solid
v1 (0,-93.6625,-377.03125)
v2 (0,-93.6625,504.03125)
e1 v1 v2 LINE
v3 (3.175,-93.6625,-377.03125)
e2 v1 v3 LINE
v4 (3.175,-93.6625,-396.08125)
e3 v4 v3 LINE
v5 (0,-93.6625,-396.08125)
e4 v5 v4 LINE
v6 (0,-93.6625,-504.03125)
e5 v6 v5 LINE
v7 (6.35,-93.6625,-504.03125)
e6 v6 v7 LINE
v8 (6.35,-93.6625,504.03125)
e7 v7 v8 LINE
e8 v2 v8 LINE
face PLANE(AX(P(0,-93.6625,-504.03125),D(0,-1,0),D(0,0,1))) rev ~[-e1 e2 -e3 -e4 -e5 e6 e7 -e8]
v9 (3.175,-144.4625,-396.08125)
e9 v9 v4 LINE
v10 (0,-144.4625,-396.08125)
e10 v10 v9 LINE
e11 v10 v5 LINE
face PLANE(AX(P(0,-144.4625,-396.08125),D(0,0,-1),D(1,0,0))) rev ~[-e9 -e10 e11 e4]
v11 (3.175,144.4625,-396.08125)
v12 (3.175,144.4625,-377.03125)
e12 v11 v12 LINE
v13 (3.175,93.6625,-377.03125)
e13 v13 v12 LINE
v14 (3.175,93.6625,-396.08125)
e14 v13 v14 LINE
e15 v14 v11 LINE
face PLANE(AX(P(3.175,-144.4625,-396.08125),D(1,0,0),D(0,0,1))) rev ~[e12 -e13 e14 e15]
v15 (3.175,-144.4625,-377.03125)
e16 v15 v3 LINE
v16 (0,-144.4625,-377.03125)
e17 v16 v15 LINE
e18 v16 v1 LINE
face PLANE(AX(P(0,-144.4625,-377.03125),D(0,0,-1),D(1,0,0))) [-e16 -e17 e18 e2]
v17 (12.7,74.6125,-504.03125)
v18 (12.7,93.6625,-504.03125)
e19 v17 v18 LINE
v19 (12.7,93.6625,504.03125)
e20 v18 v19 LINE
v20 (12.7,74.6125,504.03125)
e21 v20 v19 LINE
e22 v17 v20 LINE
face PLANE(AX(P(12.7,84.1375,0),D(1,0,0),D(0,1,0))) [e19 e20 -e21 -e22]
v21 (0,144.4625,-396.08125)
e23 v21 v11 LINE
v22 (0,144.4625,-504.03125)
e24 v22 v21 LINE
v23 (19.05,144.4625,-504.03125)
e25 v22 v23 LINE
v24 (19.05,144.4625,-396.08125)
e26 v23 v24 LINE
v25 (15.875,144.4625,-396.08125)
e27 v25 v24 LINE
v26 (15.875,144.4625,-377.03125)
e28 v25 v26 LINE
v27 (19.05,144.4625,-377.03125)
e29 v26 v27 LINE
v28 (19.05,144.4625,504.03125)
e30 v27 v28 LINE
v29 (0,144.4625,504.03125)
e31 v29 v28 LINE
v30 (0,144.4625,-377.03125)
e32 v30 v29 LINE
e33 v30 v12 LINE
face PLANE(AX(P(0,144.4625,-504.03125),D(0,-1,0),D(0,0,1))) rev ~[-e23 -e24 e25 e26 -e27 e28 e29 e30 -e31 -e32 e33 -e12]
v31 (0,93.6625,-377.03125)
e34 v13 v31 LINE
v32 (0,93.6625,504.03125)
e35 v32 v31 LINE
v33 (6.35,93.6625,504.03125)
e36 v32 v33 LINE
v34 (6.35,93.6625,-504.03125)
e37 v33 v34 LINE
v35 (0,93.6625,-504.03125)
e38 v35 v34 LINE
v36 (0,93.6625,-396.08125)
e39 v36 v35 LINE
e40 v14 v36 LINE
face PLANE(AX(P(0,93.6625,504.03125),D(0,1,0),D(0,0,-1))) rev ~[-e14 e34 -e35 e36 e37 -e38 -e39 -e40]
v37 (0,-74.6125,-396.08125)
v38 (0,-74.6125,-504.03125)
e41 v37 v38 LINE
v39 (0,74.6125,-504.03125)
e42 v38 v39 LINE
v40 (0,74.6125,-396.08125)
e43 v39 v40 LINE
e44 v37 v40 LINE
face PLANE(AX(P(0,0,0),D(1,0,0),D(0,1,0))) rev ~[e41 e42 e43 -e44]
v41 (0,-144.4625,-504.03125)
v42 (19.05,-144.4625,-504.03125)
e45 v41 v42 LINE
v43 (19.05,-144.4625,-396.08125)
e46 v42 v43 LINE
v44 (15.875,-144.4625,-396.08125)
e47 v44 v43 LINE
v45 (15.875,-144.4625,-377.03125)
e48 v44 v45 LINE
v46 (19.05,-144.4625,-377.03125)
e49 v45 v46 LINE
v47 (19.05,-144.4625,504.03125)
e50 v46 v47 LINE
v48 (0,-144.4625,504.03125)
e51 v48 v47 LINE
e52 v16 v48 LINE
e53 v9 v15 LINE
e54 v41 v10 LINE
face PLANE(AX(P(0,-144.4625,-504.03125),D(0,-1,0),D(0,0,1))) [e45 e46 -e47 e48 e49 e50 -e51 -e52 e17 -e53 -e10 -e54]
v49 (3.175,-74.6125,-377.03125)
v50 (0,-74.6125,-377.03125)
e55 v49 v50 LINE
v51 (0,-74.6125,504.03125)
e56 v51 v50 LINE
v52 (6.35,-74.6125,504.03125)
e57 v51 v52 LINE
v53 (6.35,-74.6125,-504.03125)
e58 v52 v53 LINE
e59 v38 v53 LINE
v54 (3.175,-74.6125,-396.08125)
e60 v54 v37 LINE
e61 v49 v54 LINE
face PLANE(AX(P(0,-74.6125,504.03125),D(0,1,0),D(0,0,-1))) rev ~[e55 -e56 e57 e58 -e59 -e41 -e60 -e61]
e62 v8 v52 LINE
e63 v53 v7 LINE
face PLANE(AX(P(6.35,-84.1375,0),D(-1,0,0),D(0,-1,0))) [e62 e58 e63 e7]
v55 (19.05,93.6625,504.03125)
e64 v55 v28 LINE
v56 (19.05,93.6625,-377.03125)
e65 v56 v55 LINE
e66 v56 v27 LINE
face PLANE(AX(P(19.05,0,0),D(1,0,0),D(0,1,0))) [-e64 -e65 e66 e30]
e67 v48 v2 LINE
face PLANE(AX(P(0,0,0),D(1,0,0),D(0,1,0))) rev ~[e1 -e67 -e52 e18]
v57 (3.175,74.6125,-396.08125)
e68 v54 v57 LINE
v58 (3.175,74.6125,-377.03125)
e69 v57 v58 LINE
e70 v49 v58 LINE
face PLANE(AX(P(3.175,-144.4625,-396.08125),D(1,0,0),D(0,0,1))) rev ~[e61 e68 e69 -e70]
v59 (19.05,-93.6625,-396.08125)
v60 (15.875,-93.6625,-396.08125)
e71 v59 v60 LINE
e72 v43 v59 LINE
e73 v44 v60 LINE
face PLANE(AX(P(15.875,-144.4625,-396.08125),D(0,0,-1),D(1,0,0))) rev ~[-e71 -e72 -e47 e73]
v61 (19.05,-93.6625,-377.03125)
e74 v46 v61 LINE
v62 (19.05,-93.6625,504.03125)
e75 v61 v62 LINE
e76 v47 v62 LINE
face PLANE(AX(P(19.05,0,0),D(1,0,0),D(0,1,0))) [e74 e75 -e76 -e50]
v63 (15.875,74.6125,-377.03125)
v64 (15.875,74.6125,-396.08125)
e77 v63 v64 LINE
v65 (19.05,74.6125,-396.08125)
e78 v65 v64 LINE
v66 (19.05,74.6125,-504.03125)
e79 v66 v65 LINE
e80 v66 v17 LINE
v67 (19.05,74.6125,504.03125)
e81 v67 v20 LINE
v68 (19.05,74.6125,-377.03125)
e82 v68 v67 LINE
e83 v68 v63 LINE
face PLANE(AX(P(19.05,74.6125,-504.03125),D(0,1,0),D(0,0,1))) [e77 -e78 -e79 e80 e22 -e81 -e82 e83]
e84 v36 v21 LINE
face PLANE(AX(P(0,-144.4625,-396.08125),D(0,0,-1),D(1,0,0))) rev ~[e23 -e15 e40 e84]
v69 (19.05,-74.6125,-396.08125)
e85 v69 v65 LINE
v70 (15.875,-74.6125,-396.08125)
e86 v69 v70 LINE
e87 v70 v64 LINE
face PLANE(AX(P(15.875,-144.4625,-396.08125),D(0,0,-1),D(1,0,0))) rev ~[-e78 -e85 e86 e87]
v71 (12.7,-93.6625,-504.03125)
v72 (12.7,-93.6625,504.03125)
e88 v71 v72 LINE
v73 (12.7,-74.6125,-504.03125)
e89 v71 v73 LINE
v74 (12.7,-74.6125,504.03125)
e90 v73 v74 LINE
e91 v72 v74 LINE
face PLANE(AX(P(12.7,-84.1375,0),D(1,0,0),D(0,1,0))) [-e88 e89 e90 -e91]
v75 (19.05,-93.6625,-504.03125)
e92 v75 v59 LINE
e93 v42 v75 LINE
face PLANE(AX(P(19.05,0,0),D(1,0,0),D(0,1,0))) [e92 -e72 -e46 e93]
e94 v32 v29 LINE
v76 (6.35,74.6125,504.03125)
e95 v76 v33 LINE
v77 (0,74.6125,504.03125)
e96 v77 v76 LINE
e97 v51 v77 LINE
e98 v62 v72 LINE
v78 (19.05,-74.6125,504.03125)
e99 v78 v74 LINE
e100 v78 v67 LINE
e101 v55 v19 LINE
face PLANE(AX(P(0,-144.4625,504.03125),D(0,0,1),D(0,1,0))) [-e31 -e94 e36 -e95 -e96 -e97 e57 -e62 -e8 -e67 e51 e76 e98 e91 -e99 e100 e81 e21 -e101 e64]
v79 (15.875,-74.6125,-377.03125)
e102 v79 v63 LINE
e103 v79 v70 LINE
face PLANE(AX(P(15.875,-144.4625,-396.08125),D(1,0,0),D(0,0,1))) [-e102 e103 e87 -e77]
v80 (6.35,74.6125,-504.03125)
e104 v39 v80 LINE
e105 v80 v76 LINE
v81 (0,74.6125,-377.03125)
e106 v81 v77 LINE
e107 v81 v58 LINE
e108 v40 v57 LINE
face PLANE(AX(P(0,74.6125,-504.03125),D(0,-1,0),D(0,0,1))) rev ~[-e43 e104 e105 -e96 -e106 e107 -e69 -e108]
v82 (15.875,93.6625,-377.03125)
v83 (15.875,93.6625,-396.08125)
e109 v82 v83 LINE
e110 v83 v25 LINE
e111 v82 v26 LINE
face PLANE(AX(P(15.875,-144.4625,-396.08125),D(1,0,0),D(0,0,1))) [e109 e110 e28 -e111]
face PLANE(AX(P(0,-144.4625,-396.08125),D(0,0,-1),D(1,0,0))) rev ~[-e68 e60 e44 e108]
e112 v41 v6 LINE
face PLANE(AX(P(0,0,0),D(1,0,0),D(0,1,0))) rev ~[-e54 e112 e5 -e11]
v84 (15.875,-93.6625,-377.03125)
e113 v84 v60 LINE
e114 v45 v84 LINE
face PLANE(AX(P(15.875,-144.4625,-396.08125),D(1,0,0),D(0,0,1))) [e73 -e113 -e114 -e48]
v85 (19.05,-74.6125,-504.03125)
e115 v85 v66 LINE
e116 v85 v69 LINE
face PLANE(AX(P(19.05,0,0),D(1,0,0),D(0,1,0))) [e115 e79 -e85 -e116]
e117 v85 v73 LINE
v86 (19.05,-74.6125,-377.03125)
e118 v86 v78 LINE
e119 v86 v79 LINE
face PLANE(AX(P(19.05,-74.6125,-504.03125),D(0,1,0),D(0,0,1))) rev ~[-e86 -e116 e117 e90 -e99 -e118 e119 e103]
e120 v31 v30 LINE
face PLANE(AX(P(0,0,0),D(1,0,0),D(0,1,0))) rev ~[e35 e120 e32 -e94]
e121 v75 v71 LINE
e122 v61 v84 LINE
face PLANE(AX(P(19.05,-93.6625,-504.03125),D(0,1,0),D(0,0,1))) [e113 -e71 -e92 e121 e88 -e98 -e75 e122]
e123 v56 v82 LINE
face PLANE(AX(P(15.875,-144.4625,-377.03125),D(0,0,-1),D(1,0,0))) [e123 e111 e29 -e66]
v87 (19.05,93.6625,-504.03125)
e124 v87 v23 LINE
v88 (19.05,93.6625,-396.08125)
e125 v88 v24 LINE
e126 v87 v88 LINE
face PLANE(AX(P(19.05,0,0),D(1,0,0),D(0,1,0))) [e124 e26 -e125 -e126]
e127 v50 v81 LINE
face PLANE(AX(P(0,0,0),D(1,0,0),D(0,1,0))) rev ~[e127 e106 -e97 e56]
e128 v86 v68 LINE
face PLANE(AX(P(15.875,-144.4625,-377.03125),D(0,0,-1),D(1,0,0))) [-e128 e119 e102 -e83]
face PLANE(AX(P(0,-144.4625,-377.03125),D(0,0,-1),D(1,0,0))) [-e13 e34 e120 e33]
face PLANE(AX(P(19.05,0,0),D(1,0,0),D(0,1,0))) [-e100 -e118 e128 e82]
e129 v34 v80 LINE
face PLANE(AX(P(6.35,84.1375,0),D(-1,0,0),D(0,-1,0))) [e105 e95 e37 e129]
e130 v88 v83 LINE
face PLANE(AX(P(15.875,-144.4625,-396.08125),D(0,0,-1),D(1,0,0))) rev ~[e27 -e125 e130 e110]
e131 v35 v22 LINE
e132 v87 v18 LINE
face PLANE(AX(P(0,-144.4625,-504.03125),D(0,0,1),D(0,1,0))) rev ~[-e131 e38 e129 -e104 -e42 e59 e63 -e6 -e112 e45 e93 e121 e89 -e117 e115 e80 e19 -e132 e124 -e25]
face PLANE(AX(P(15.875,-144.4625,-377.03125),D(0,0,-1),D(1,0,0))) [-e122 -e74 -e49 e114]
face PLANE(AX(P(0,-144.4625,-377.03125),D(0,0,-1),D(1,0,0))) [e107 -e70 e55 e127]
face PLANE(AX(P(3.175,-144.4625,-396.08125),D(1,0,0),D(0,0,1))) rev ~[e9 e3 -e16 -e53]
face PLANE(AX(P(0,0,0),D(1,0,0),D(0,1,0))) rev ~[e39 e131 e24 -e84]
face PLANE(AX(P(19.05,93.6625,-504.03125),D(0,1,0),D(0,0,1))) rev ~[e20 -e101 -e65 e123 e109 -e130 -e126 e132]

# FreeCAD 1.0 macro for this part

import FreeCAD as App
import Part
import Sketcher
Q = App.Units.Quantity

doc = App.newDocument("Part")
body = doc.addObject("PartDesign::Body", "Body")

sketch1 = doc.addObject("Sketcher::SketchObject", "Sketch")
body.addObject(sketch1)
sketch1.AttachmentSupport = (doc.YZ_Plane, [""])
sketch1.MapMode = "FlatFace"
sketch1.addGeometry([
    Part.LineSegment(App.Vector(-144, 504, 0), App.Vector(-144, -504, 0)),
    Part.LineSegment(App.Vector(-144, -504, 0), App.Vector(144, -504, 0)),
    Part.LineSegment(App.Vector(144, -504, 0), App.Vector(144, 504, 0)),
    Part.LineSegment(App.Vector(144, 504, 0), App.Vector(-144, 504, 0)),
], False)
sketch1.addConstraint([
    Sketcher.Constraint("Coincident", 0, 2, 1, 1),
    Sketcher.Constraint("Coincident", 1, 2, 2, 1),
    Sketcher.Constraint("Coincident", 2, 2, 3, 1),
    Sketcher.Constraint("Coincident", 3, 2, 0, 1),
    Sketcher.Constraint("Vertical", 0),
    Sketcher.Constraint("Horizontal", 1),
    Sketcher.Constraint("Vertical", 2),
    Sketcher.Constraint("Horizontal", 3),
    Sketcher.Constraint("Symmetric", 0, 2, 2, 2, -1, 1),
    Sketcher.Constraint("DistanceX", 1, 1, 1, 2, Q("11.375 in")),
    Sketcher.Constraint("DistanceY", 0, 2, 0, 1, Q("39.6875 in")),
])
pad1 = doc.addObject("PartDesign::Pad", "Pad")
body.addObject(pad1)
pad1.Profile = sketch1
pad1.Length = Q("0.75 in")

sketch2 = doc.addObject("Sketcher::SketchObject", "Sketch001")
body.addObject(sketch2)
sketch2.AttachmentSupport = (doc.YZ_Plane, [""])
sketch2.MapMode = "FlatFace"
sketch2.AttachmentOffset = App.Placement(App.Vector(0, 0, 0.75 * 25.4), App.Rotation())
sketch2.addGeometry([
    Part.LineSegment(App.Vector(-94, 504, 0), App.Vector(-94, -504, 0)),
    Part.LineSegment(App.Vector(-94, -504, 0), App.Vector(-75, -504, 0)),
    Part.LineSegment(App.Vector(-75, -504, 0), App.Vector(-75, 504, 0)),
    Part.LineSegment(App.Vector(-75, 504, 0), App.Vector(-94, 504, 0)),
    Part.LineSegment(App.Vector(75, 504, 0), App.Vector(75, -504, 0)),
    Part.LineSegment(App.Vector(75, -504, 0), App.Vector(94, -504, 0)),
    Part.LineSegment(App.Vector(94, -504, 0), App.Vector(94, 504, 0)),
    Part.LineSegment(App.Vector(94, 504, 0), App.Vector(75, 504, 0)),
], False)
sketch2.addConstraint([
    Sketcher.Constraint("Coincident", 0, 2, 1, 1),
    Sketcher.Constraint("Coincident", 1, 2, 2, 1),
    Sketcher.Constraint("Coincident", 2, 2, 3, 1),
    Sketcher.Constraint("Coincident", 3, 2, 0, 1),
    Sketcher.Constraint("Coincident", 4, 2, 5, 1),
    Sketcher.Constraint("Coincident", 5, 2, 6, 1),
    Sketcher.Constraint("Coincident", 6, 2, 7, 1),
    Sketcher.Constraint("Coincident", 7, 2, 4, 1),
    Sketcher.Constraint("Vertical", 0),
    Sketcher.Constraint("Horizontal", 1),
    Sketcher.Constraint("Vertical", 2),
    Sketcher.Constraint("Horizontal", 3),
    Sketcher.Constraint("Vertical", 4),
    Sketcher.Constraint("Horizontal", 5),
    Sketcher.Constraint("Vertical", 6),
    Sketcher.Constraint("Horizontal", 7),
    Sketcher.Constraint("Symmetric", 2, 2, 4, 2, -1, 1),
    Sketcher.Constraint("Symmetric", 0, 2, 6, 2, -1, 1),
    Sketcher.Constraint("Horizontal", 1, 2, 4, 2),
    Sketcher.Constraint("DistanceX", 1, 1, 1, 2, Q("0.75 in")),
    Sketcher.Constraint("DistanceY", 0, 2, 0, 1, Q("39.6875 in")),
    Sketcher.Constraint("DistanceX", 0, 2, -1, 1, Q("3.6875 in")),
])
pocket1 = doc.addObject("PartDesign::Pocket", "Pocket")
body.addObject(pocket1)
pocket1.Profile = sketch2
pocket1.Length = Q("0.25 in")

sketch3 = doc.addObject("Sketcher::SketchObject", "Sketch002")
body.addObject(sketch3)
sketch3.AttachmentSupport = (doc.YZ_Plane, [""])
sketch3.MapMode = "FlatFace"
sketch3.addGeometry([
    Part.LineSegment(App.Vector(-94, 504, 0), App.Vector(-75, 504, 0)),
    Part.LineSegment(App.Vector(-75, 504, 0), App.Vector(-75, -504, 0)),
    Part.LineSegment(App.Vector(-75, -504, 0), App.Vector(-94, -504, 0)),
    Part.LineSegment(App.Vector(-94, -504, 0), App.Vector(-94, 504, 0)),
    Part.LineSegment(App.Vector(75, 504, 0), App.Vector(94, 504, 0)),
    Part.LineSegment(App.Vector(94, 504, 0), App.Vector(94, -504, 0)),
    Part.LineSegment(App.Vector(94, -504, 0), App.Vector(75, -504, 0)),
    Part.LineSegment(App.Vector(75, -504, 0), App.Vector(75, 504, 0)),
], False)
sketch3.addConstraint([
    Sketcher.Constraint("Coincident", 0, 2, 1, 1),
    Sketcher.Constraint("Coincident", 1, 2, 2, 1),
    Sketcher.Constraint("Coincident", 2, 2, 3, 1),
    Sketcher.Constraint("Coincident", 3, 2, 0, 1),
    Sketcher.Constraint("Coincident", 4, 2, 5, 1),
    Sketcher.Constraint("Coincident", 5, 2, 6, 1),
    Sketcher.Constraint("Coincident", 6, 2, 7, 1),
    Sketcher.Constraint("Coincident", 7, 2, 4, 1),
    Sketcher.Constraint("Horizontal", 0),
    Sketcher.Constraint("Vertical", 1),
    Sketcher.Constraint("Horizontal", 2),
    Sketcher.Constraint("Vertical", 3),
    Sketcher.Constraint("Horizontal", 4),
    Sketcher.Constraint("Vertical", 5),
    Sketcher.Constraint("Horizontal", 6),
    Sketcher.Constraint("Vertical", 7),
    Sketcher.Constraint("Symmetric", 2, 2, 4, 2, -1, 1),
    Sketcher.Constraint("Symmetric", 0, 2, 6, 2, -1, 1),
    Sketcher.Constraint("Horizontal", 3, 2, 4, 2),
    Sketcher.Constraint("DistanceX", 0, 1, 0, 2, Q("0.75 in")),
    Sketcher.Constraint("DistanceY", 1, 2, 1, 1, Q("39.6875 in")),
    Sketcher.Constraint("DistanceX", 0, 2, -1, 1, Q("2.9375 in")),
])
pocket2 = doc.addObject("PartDesign::Pocket", "Pocket001")
body.addObject(pocket2)
pocket2.Profile = sketch3
pocket2.Length = Q("0.25 in")
pocket2.Reversed = True

sketch4 = doc.addObject("Sketcher::SketchObject", "Sketch003")
body.addObject(sketch4)
sketch4.AttachmentSupport = (doc.XZ_Plane, [""])
sketch4.MapMode = "FlatFace"
sketch4.AttachmentOffset = App.Placement(App.Vector(0, 0, 5.6875 * 25.4), App.Rotation())
sketch4.addGeometry([
    Part.LineSegment(App.Vector(0, -377, 0), App.Vector(0, -396.1, 0)),
    Part.LineSegment(App.Vector(0, -396.1, 0), App.Vector(3.2, -396.1, 0)),
    Part.LineSegment(App.Vector(3.2, -396.1, 0), App.Vector(3.2, -377, 0)),
    Part.LineSegment(App.Vector(3.2, -377, 0), App.Vector(0, -377, 0)),
    Part.LineSegment(App.Vector(15.9, -377, 0), App.Vector(15.9, -396.1, 0)),
    Part.LineSegment(App.Vector(15.9, -396.1, 0), App.Vector(19.1, -396.1, 0)),
    Part.LineSegment(App.Vector(19.1, -396.1, 0), App.Vector(19.1, -377, 0)),
    Part.LineSegment(App.Vector(19.1, -377, 0), App.Vector(15.9, -377, 0)),
], False)
sketch4.addConstraint([
    Sketcher.Constraint("Coincident", 0, 2, 1, 1),
    Sketcher.Constraint("Coincident", 1, 2, 2, 1),
    Sketcher.Constraint("Coincident", 2, 2, 3, 1),
    Sketcher.Constraint("Coincident", 3, 2, 0, 1),
    Sketcher.Constraint("Coincident", 4, 2, 5, 1),
    Sketcher.Constraint("Coincident", 5, 2, 6, 1),
    Sketcher.Constraint("Coincident", 6, 2, 7, 1),
    Sketcher.Constraint("Coincident", 7, 2, 4, 1),
    Sketcher.Constraint("Vertical", 0),
    Sketcher.Constraint("Horizontal", 1),
    Sketcher.Constraint("Vertical", 2),
    Sketcher.Constraint("Horizontal", 3),
    Sketcher.Constraint("Vertical", 4),
    Sketcher.Constraint("Horizontal", 5),
    Sketcher.Constraint("Vertical", 6),
    Sketcher.Constraint("Horizontal", 7),
    Sketcher.Constraint("PointOnObject", 0, 2, -2),
    Sketcher.Constraint("Horizontal", 1, 2, 4, 2),
    Sketcher.Constraint("Horizontal", 3, 2, 6, 2),
    Sketcher.Constraint("Equal", 3, 5),
    Sketcher.Constraint("DistanceY", 0, 2, 0, 1, Q("0.75 in")),
    Sketcher.Constraint("DistanceX", 1, 2, 4, 2, Q("0.5 in")),
    Sketcher.Constraint("DistanceX", 1, 1, 1, 2, Q("0.125 in")),
    Sketcher.Constraint("DistanceY", 0, 2, -1, 1, Q("15.59375 in")),
])
pocket3 = doc.addObject("PartDesign::Pocket", "Pocket002")
body.addObject(pocket3)
pocket3.Profile = sketch4
pocket3.Type = "ThroughAll"

doc.recompute()
